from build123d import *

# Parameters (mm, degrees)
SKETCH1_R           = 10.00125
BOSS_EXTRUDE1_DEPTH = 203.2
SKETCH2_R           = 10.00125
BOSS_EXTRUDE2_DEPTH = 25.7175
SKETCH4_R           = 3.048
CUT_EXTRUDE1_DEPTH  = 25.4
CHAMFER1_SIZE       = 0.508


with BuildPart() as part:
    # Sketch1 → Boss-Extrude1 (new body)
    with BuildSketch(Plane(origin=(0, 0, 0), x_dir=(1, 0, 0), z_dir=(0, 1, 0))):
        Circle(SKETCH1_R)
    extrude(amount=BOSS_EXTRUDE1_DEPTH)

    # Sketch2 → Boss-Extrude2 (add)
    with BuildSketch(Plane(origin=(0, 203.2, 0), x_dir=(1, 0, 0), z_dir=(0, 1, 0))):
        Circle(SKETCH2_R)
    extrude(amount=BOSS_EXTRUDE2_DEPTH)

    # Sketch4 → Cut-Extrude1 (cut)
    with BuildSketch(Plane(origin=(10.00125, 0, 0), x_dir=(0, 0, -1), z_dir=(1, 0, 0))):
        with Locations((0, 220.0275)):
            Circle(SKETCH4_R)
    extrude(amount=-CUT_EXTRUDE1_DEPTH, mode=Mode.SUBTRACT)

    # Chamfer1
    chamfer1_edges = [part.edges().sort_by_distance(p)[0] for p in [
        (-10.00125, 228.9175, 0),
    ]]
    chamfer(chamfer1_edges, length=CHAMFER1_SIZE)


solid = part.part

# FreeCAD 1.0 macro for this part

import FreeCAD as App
import Part
import Sketcher

V = App.Vector
Q = App.Units.Quantity


def edges_at(feature, points):
    """Names of the edges that pass closest to the given points."""
    edges = feature.Shape.Edges
    near = lambda p: min(range(len(edges)), key=lambda i: edges[i].distToShape(Part.Vertex(*p))[0])
    return sorted({f"Edge{near(p) + 1}" for p in points})

doc = App.newDocument("Part")
params = doc.addObject("Spreadsheet::Sheet", "Params")
for row, (alias, value) in enumerate([
    ("pad1_length", "8 in"),
    ("pad2_length", "1.0125 in"),
    ("sketch3_diameter", "0.24 in"),
    ("pocket1_length", "1 in"),
    ("chamfer_size", "0.02 in"),
], start=1):
    params.set(f"A{row}", alias)
    params.set(f"B{row}", "=" + value)
    params.setAlias(f"B{row}", alias)

body = doc.addObject("PartDesign::Body", "Body")

# Sketch on XZ plane
sketch1 = body.newObject("Sketcher::SketchObject", "Sketch")
sketch1.AttachmentSupport = (doc.getObject("XZ_Plane"), [""])
sketch1.MapMode = "FlatFace"
sketch1.addGeometry(Part.Circle(V(0, 0, 0), V(0, 0, 1), 10), False)
sketch1.addConstraint(Sketcher.Constraint("Coincident", 0, 3, -1, 1))
sketch1.addConstraint(Sketcher.Constraint("Diameter", 0, Q("0.7875 in")))
pad1 = body.newObject("PartDesign::Pad", "Pad")
pad1.Profile = sketch1
pad1.setExpression("Length", "Params.pad1_length")
pad1.Reversed = True

# Sketch on XZ plane
sketch2 = body.newObject("Sketcher::SketchObject", "Sketch001")
sketch2.AttachmentSupport = (doc.getObject("XZ_Plane"), [""])
sketch2.MapMode = "FlatFace"
sketch2.AttachmentOffset = App.Placement(V(0, 0, -8 * 25.4), App.Rotation())
sketch2.addGeometry(Part.Circle(V(0, 0, 0), V(0, 0, 1), 10), False)
sketch2.addConstraint(Sketcher.Constraint("Coincident", 0, 3, -1, 1))
sketch2.addConstraint(Sketcher.Constraint("Diameter", 0, Q("0.7875 in")))
pad2 = body.newObject("PartDesign::Pad", "Pad001")
pad2.Profile = sketch2
pad2.setExpression("Length", "Params.pad2_length")
pad2.Reversed = True

# Sketch on YZ plane
sketch3 = body.newObject("Sketcher::SketchObject", "Sketch002")
sketch3.AttachmentSupport = (doc.getObject("YZ_Plane"), [""])
sketch3.MapMode = "FlatFace"
sketch3.AttachmentOffset = App.Placement(V(0, 0, 10.00125), App.Rotation())
sketch3.addGeometry(Part.Circle(V(220, 0, 0), V(0, 0, 1), 3), False)
sketch3.addConstraint(Sketcher.Constraint("PointOnObject", 0, 3, -1))
sketch3.addConstraint(Sketcher.Constraint("Diameter", 0, Q("0.24 in")))
sketch3.addConstraint(Sketcher.Constraint("DistanceX", -1, 1, 0, 3, Q("8.6625 in")))
sketch3.setExpression("Constraints[1]", "Params.sketch3_diameter")
pocket1 = body.newObject("PartDesign::Pocket", "Pocket")
pocket1.Profile = sketch3
pocket1.setExpression("Length", "Params.pocket1_length")
doc.recompute()

chamfer = body.newObject("PartDesign::Chamfer", "Chamfer")
chamfer.Base = (pocket1, edges_at(pocket1, [(-10.001, 228.917, 0)]))
chamfer.setExpression("Size", "Params.chamfer_size")

doc.recompute()
